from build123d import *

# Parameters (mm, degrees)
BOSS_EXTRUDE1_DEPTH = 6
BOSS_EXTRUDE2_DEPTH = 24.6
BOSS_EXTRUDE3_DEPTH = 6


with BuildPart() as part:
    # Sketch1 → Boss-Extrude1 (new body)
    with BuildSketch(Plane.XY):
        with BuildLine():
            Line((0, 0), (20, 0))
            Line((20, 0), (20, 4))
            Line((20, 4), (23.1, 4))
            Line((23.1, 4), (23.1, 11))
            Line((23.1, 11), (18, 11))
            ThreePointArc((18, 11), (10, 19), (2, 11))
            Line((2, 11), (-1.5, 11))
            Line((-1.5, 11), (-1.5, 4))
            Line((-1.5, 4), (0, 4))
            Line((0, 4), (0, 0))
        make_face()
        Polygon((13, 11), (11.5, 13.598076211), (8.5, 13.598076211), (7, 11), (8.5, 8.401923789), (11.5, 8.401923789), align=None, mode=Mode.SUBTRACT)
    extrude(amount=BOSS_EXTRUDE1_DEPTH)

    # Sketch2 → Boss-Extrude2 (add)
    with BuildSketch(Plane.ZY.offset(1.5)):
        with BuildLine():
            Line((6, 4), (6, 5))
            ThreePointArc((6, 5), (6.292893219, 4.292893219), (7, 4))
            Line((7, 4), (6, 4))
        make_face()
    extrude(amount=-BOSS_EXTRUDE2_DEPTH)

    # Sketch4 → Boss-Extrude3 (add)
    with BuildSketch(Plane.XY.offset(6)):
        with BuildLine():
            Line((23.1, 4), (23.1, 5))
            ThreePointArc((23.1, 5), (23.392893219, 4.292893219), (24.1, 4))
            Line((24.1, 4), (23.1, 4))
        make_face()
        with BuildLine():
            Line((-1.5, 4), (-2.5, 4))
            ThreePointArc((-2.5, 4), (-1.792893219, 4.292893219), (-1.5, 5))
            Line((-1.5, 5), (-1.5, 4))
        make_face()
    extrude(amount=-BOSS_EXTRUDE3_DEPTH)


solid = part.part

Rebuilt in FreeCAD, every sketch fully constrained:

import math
import FreeCAD as App
import Part
import Sketcher
Q = App.Units.Quantity

doc = App.newDocument("Part")
body = doc.addObject("PartDesign::Body", "Body")

sketch1 = body.newObject("Sketcher::SketchObject", "Sketch")
sketch1.AttachmentSupport = (doc.getObject("XY_Plane"), [""])
sketch1.MapMode = "FlatFace"
sketch1.addGeometry([
    Part.LineSegment(App.Vector(0, 0, 0), App.Vector(20, 0, 0)),
    Part.LineSegment(App.Vector(20, 0, 0), App.Vector(20, 4, 0)),
    Part.LineSegment(App.Vector(20, 4, 0), App.Vector(23.1, 4, 0)),
    Part.LineSegment(App.Vector(23.1, 4, 0), App.Vector(23.1, 11, 0)),
    Part.LineSegment(App.Vector(23.1, 11, 0), App.Vector(18, 11, 0)),
    Part.ArcOfCircle(Part.Circle(App.Vector(10, 11, 0), App.Vector(0, 0, 1), 8), math.radians(0), math.radians(180)),
    Part.LineSegment(App.Vector(2, 11, 0), App.Vector(-1.5, 11, 0)),
    Part.LineSegment(App.Vector(-1.5, 11, 0), App.Vector(-1.5, 4, 0)),
    Part.LineSegment(App.Vector(-1.5, 4, 0), App.Vector(0, 4, 0)),
    Part.LineSegment(App.Vector(0, 4, 0), App.Vector(0, 0, 0)),
    Part.LineSegment(App.Vector(11.5, 13.598076, 0), App.Vector(13, 11, 0)),
    Part.LineSegment(App.Vector(13, 11, 0), App.Vector(11.5, 8.401924, 0)),
    Part.LineSegment(App.Vector(11.5, 8.401924, 0), App.Vector(8.5, 8.401924, 0)),
    Part.LineSegment(App.Vector(8.5, 8.401924, 0), App.Vector(7, 11, 0)),
    Part.LineSegment(App.Vector(7, 11, 0), App.Vector(8.5, 13.598076, 0)),
    Part.LineSegment(App.Vector(8.5, 13.598076, 0), App.Vector(11.5, 13.598076, 0)),
], False)
sketch1.addConstraint([
    Sketcher.Constraint("Coincident", 0, 2, 1, 1),
    Sketcher.Constraint("Coincident", 1, 2, 2, 1),
    Sketcher.Constraint("Coincident", 2, 2, 3, 1),
    Sketcher.Constraint("Coincident", 3, 2, 4, 1),
    Sketcher.Constraint("Coincident", 4, 2, 5, 1),
    Sketcher.Constraint("Coincident", 5, 2, 6, 1),
    Sketcher.Constraint("Coincident", 6, 2, 7, 1),
    Sketcher.Constraint("Coincident", 7, 2, 8, 1),
    Sketcher.Constraint("Coincident", 8, 2, 9, 1),
    Sketcher.Constraint("Coincident", 9, 2, 0, 1),
    Sketcher.Constraint("Coincident", 10, 2, 11, 1),
    Sketcher.Constraint("Coincident", 11, 2, 12, 1),
    Sketcher.Constraint("Coincident", 12, 2, 13, 1),
    Sketcher.Constraint("Coincident", 13, 2, 14, 1),
    Sketcher.Constraint("Coincident", 14, 2, 15, 1),
    Sketcher.Constraint("Coincident", 15, 2, 10, 1),
    Sketcher.Constraint("Horizontal", 0),
    Sketcher.Constraint("Vertical", 1),
    Sketcher.Constraint("Horizontal", 2),
    Sketcher.Constraint("Vertical", 3),
    Sketcher.Constraint("Horizontal", 4),
    Sketcher.Constraint("Horizontal", 6),
    Sketcher.Constraint("Vertical", 7),
    Sketcher.Constraint("Horizontal", 8),
    Sketcher.Constraint("Vertical", 9),
    Sketcher.Constraint("Horizontal", 12),
    Sketcher.Constraint("Horizontal", 15),
    Sketcher.Constraint("Coincident", 9, 2, -1, 1),
    Sketcher.Constraint("Parallel", 10, 13),
    Sketcher.Constraint("Parallel", 11, 14),
    Sketcher.Constraint("Horizontal", 5, 3, 3, 2),
    Sketcher.Constraint("Horizontal", 4, 2, 5, 2),
    Sketcher.Constraint("Horizontal", 2, 2, 7, 2),
    Sketcher.Constraint("Horizontal", 6, 2, 10, 2),
    Sketcher.Constraint("Horizontal", 10, 2, 13, 2),
    Sketcher.Constraint("Vertical", 12, 2, 14, 2),
    Sketcher.Constraint("Vertical", 11, 2, 15, 2),
    Sketcher.Constraint("Radius", 5, Q("8 mm")),
    Sketcher.Constraint("DistanceX", 0, 1, 0, 2, Q("20 mm")),
    Sketcher.Constraint("DistanceX", 12, 2, 12, 1, Q("3 mm")),
    Sketcher.Constraint("DistanceY", 1, 1, 1, 2, Q("4 mm")),
    Sketcher.Constraint("DistanceY", 3, 1, 3, 2, Q("7 mm")),
    Sketcher.Constraint("Angle", 10, Q("-60 deg")),
    Sketcher.Constraint("Distance", 10, Q("3 mm")),
    Sketcher.Constraint("DistanceX", 2, 1, 2, 2, Q("3.1 mm")),
    Sketcher.Constraint("DistanceX", 4, 2, 4, 1, Q("5.1 mm")),
    Sketcher.Constraint("DistanceX", 6, 2, 6, 1, Q("3.5 mm")),
    Sketcher.Constraint("DistanceX", -1, 1, 10, 2, Q("13 mm")),
])
pad1 = body.newObject("PartDesign::Pad", "Pad")
pad1.Profile = sketch1
pad1.Length = 6

sketch2 = body.newObject("Sketcher::SketchObject", "Sketch001")
sketch2.AttachmentSupport = (doc.getObject("YZ_Plane"), [""])
sketch2.MapMode = "FlatFace"
sketch2.AttachmentOffset = App.Placement(App.Vector(0, 0, -1.5), App.Rotation())
sketch2.addGeometry([
    Part.LineSegment(App.Vector(5, 6, 0), App.Vector(4, 6, 0)),
    Part.LineSegment(App.Vector(4, 6, 0), App.Vector(4, 7, 0)),
    Part.ArcOfCircle(Part.Circle(App.Vector(5, 7, 0), App.Vector(0, 0, 1), 1), math.radians(-180), math.radians(-90)),
], False)
sketch2.addConstraint([
    Sketcher.Constraint("Coincident", 0, 2, 1, 1),
    Sketcher.Constraint("Tangent", 1, 2, 2, 1),
    Sketcher.Constraint("Tangent", 2, 2, 0, 1),
    Sketcher.Constraint("Horizontal", 0),
    Sketcher.Constraint("Vertical", 1),
    Sketcher.Constraint("Radius", 2, Q("1 mm")),
    Sketcher.Constraint("DistanceX", -1, 1, 2, 3, Q("5 mm")),
    Sketcher.Constraint("DistanceY", -1, 1, 2, 3, Q("7 mm")),
])
pad2 = body.newObject("PartDesign::Pad", "Pad001")
pad2.Profile = sketch2
pad2.Length = 24.6

sketch3 = body.newObject("Sketcher::SketchObject", "Sketch002")
sketch3.AttachmentSupport = (doc.getObject("XY_Plane"), [""])
sketch3.MapMode = "FlatFace"
sketch3.AttachmentOffset = App.Placement(App.Vector(0, 0, 6), App.Rotation())
sketch3.addGeometry([
    Part.LineSegment(App.Vector(23.1, 5, 0), App.Vector(23.1, 4, 0)),
    Part.LineSegment(App.Vector(23.1, 4, 0), App.Vector(24.1, 4, 0)),
    Part.ArcOfCircle(Part.Circle(App.Vector(24.1, 5, 0), App.Vector(0, 0, 1), 1), math.radians(-180), math.radians(-90)),
    Part.LineSegment(App.Vector(-2.5, 4, 0), App.Vector(-1.5, 4, 0)),
    Part.LineSegment(App.Vector(-1.5, 4, 0), App.Vector(-1.5, 5, 0)),
    Part.ArcOfCircle(Part.Circle(App.Vector(-2.5, 5, 0), App.Vector(0, 0, 1), 1), math.radians(-90), math.radians(0)),
], False)
sketch3.addConstraint([
    Sketcher.Constraint("Coincident", 0, 2, 1, 1),
    Sketcher.Constraint("Tangent", 1, 2, 2, 2),
    Sketcher.Constraint("Tangent", 2, 1, 0, 1),
    Sketcher.Constraint("Coincident", 3, 2, 4, 1),
    Sketcher.Constraint("Tangent", 4, 2, 5, 2),
    Sketcher.Constraint("Tangent", 5, 1, 3, 1),
    Sketcher.Constraint("Vertical", 0),
    Sketcher.Constraint("Horizontal", 1),
    Sketcher.Constraint("Horizontal", 3),
    Sketcher.Constraint("Vertical", 4),
    Sketcher.Constraint("Equal", 2, 5),
    Sketcher.Constraint("Horizontal", 2, 3, 5, 3),
    Sketcher.Constraint("Radius", 2, Q("1 mm")),
    Sketcher.Constraint("DistanceY", -1, 1, 2, 3, Q("5 mm")),
    Sketcher.Constraint("DistanceX", -1, 1, 2, 3, Q("24.1 mm")),
    Sketcher.Constraint("DistanceX", 5, 3, -1, 1, Q("2.5 mm")),
])
pad3 = body.newObject("PartDesign::Pad", "Pad002")
pad3.Profile = sketch3
pad3.Length = 6
pad3.Reversed = True

doc.recompute()
